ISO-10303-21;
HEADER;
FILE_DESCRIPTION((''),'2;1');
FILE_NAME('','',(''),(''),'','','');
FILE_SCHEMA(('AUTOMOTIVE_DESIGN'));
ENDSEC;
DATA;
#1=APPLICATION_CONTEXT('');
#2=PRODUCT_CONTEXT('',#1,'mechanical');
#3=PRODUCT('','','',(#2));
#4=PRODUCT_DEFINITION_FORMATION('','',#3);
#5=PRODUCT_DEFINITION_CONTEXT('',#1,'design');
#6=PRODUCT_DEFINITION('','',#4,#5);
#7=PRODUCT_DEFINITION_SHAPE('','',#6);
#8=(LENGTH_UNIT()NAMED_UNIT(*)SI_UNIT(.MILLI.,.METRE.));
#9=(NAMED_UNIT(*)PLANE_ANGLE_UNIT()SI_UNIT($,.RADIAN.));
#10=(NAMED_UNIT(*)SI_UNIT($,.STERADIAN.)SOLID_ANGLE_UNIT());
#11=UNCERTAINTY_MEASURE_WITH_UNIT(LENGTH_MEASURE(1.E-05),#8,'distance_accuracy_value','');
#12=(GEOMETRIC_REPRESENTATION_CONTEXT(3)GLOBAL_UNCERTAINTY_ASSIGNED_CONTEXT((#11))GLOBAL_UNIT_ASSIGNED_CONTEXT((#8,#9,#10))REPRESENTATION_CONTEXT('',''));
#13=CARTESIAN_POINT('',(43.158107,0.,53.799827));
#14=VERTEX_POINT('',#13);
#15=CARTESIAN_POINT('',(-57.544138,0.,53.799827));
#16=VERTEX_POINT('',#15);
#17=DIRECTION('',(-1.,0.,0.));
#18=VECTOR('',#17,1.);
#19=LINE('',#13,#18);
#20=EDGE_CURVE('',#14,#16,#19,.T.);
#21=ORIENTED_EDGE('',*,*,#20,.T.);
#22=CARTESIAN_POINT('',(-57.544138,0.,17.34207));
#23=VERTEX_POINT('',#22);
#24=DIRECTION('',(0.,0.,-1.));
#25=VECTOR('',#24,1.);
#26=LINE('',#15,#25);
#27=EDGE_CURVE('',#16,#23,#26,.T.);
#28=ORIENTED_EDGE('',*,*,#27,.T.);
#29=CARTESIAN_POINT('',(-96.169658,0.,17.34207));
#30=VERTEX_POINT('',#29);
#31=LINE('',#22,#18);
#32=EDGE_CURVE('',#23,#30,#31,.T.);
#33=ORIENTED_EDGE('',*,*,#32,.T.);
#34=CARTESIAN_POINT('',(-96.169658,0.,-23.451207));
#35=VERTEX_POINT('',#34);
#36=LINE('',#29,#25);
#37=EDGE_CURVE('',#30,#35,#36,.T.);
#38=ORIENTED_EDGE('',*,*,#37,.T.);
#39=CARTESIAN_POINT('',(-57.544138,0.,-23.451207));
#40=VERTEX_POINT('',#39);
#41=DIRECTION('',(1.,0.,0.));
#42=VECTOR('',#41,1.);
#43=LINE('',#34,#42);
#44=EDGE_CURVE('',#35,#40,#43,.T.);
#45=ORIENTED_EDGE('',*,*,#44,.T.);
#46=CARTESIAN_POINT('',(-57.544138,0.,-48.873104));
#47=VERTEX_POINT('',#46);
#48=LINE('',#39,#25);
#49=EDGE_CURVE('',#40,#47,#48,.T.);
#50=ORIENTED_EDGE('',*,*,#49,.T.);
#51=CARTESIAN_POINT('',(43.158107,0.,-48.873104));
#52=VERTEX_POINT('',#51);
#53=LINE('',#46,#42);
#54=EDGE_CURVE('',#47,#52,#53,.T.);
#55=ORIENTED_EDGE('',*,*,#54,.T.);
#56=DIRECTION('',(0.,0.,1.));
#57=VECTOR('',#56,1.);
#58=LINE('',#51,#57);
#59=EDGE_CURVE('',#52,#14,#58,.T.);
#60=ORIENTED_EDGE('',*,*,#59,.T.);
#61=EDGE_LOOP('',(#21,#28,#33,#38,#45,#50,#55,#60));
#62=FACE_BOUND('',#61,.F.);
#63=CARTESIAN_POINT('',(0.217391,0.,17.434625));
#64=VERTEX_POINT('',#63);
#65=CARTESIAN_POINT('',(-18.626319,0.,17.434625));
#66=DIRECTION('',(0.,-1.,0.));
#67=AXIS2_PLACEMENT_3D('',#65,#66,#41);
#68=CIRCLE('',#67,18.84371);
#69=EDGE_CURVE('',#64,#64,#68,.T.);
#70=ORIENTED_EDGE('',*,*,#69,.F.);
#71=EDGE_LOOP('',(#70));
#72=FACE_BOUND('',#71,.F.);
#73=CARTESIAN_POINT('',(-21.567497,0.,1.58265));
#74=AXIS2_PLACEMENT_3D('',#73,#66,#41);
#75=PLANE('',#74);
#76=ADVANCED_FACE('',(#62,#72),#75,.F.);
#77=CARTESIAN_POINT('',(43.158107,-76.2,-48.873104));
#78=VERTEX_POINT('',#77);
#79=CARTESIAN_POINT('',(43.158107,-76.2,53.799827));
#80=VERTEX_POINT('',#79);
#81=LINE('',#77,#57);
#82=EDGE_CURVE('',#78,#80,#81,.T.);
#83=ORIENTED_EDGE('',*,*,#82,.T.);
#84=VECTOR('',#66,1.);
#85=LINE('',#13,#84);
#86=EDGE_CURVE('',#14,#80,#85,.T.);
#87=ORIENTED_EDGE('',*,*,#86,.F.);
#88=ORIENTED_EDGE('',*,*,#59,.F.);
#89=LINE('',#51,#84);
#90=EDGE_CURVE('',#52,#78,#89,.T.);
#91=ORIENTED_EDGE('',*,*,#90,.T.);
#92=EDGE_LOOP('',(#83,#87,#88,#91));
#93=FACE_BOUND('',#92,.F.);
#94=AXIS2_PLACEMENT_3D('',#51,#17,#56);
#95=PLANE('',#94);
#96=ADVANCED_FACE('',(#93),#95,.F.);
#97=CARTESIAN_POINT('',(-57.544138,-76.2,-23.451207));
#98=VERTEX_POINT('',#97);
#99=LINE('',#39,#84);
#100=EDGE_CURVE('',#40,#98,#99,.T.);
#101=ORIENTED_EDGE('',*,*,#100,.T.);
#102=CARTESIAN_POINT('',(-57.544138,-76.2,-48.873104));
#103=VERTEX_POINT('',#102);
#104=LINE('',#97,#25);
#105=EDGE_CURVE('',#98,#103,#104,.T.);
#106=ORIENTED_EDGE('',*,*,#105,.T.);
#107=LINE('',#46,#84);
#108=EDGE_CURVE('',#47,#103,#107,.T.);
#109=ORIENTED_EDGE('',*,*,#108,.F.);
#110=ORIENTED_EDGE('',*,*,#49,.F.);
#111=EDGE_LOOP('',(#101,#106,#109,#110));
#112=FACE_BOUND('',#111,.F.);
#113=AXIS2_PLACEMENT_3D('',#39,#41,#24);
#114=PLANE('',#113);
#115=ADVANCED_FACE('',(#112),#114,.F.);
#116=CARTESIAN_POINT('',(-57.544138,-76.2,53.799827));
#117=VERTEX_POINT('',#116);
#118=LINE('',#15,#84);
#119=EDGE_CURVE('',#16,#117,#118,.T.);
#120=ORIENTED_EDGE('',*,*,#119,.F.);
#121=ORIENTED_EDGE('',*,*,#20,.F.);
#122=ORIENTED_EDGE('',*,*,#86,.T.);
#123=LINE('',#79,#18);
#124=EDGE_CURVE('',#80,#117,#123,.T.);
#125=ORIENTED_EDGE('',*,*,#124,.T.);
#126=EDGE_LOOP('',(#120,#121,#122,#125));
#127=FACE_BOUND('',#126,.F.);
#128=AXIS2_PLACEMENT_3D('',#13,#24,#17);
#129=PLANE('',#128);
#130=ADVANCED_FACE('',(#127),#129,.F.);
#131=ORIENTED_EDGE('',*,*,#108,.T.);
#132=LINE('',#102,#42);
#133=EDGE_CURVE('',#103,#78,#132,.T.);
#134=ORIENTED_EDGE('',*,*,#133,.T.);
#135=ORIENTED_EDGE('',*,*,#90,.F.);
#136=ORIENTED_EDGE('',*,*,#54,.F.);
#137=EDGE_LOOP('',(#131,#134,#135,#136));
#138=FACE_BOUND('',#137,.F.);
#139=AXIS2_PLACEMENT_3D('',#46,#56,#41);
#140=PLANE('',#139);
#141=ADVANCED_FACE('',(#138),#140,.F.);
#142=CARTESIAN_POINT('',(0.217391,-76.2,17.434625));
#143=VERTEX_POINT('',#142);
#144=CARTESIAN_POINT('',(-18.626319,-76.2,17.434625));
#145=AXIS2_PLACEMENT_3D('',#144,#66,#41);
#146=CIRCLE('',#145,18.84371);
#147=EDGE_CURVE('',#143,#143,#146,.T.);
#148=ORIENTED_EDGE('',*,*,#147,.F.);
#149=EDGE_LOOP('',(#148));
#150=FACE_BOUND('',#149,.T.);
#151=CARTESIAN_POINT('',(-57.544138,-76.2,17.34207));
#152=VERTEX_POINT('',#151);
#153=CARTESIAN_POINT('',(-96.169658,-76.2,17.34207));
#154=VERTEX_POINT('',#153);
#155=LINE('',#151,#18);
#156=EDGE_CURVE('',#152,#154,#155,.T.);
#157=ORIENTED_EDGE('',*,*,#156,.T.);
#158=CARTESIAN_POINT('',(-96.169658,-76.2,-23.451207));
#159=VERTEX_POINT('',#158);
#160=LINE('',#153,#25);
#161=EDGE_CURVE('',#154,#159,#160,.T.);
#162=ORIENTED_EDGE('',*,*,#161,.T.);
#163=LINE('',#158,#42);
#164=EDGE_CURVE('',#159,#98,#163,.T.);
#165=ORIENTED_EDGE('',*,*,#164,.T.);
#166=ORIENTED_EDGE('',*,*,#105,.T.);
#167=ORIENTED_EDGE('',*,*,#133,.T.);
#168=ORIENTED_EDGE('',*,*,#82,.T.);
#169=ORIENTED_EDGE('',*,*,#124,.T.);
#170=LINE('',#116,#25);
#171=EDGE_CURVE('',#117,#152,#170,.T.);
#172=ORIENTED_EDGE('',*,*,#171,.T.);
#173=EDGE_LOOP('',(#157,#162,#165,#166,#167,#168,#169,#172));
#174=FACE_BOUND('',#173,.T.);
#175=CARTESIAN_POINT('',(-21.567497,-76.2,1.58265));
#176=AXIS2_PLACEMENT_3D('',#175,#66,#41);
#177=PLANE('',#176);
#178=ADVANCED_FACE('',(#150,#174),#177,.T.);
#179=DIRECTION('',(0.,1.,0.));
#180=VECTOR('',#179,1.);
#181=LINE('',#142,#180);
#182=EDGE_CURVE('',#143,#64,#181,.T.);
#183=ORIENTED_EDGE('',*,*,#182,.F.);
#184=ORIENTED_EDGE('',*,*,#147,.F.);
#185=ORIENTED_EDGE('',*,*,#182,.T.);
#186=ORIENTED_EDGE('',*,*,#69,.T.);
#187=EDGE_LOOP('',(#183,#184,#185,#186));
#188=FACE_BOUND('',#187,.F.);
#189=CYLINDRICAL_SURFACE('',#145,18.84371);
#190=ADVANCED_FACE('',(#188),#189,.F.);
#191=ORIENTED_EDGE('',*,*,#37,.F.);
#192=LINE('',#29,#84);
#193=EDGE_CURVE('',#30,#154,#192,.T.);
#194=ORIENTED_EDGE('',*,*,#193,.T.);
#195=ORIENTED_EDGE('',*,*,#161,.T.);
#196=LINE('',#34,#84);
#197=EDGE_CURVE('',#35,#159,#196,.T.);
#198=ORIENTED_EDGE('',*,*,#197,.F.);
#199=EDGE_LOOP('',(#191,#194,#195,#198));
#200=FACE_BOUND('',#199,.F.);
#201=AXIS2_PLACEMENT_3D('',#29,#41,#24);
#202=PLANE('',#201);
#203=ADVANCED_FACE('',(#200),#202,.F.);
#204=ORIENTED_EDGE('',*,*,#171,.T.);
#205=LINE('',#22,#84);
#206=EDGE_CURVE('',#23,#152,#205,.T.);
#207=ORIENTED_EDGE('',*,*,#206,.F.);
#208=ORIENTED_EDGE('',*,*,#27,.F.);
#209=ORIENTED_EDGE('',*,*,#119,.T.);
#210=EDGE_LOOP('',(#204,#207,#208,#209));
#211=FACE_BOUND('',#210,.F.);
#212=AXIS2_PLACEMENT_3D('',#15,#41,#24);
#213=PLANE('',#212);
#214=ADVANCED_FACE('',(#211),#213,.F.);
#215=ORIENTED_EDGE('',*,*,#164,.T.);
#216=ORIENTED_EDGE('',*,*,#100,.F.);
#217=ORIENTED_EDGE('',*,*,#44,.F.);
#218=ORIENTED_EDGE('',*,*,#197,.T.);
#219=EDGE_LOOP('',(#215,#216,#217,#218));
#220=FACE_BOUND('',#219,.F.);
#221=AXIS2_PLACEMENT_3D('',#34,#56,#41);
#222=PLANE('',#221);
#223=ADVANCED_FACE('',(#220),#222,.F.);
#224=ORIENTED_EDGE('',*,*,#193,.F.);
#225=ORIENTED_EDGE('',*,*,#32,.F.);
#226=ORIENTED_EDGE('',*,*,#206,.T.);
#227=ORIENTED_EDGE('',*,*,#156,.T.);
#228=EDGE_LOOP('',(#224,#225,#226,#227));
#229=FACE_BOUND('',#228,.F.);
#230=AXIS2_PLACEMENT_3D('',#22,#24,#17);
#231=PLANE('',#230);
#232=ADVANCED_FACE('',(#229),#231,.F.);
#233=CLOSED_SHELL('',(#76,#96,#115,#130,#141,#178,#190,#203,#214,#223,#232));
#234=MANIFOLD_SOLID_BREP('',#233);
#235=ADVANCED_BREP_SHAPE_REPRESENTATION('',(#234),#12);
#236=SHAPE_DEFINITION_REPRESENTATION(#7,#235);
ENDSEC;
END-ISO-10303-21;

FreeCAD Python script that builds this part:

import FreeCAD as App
import Part
import Sketcher

V = App.Vector
Q = App.Units.Quantity


def add_polygon(sketch, points):
    """Adds a closed chain of lines whose ends are joined by coincident constraints."""
    first, n = sketch.GeometryCount, len(points)
    for a, b in zip(points, points[1:] + points[:1]):
        sketch.addGeometry(Part.LineSegment(App.Vector(*a, 0), App.Vector(*b, 0)), False)
    for i in range(n):
        sketch.addConstraint(Sketcher.Constraint("Coincident", first + i, 2, first + (i + 1) % n, 1))

doc = App.newDocument("Part")
body = doc.addObject("PartDesign::Body", "Body")

# Sketch on XZ plane
sketch1 = body.newObject("Sketcher::SketchObject", "Sketch")
sketch1.AttachmentSupport = (doc.getObject("XZ_Plane"), [""])
sketch1.MapMode = "FlatFace"
add_polygon(sketch1, [(-58, 17), (-96, 17), (-96, -23), (-58, -23), (-58, -49), (43, -49), (43, 54), (-58, 54)])  # lines 0-7
sketch1.addConstraint(Sketcher.Constraint("Horizontal", 0))
sketch1.addConstraint(Sketcher.Constraint("Vertical", 1))
sketch1.addConstraint(Sketcher.Constraint("Horizontal", 2))
sketch1.addConstraint(Sketcher.Constraint("Vertical", 3))
sketch1.addConstraint(Sketcher.Constraint("Horizontal", 4))
sketch1.addConstraint(Sketcher.Constraint("Vertical", 5))
sketch1.addConstraint(Sketcher.Constraint("Horizontal", 6))
sketch1.addConstraint(Sketcher.Constraint("Vertical", 7))
sketch1.addConstraint(Sketcher.Constraint("Vertical", 3, 2, 6, 2))
sketch1.addConstraint(Sketcher.Constraint("DistanceX", 0, 2, 0, 1, 38.62552))
sketch1.addConstraint(Sketcher.Constraint("DistanceY", 5, 1, 5, 2, 102.672931))
sketch1.addConstraint(Sketcher.Constraint("DistanceX", 4, 1, 4, 2, 100.702245))
sketch1.addConstraint(Sketcher.Constraint("DistanceY", 1, 2, 1, 1, 40.793277))
sketch1.addConstraint(Sketcher.Constraint("DistanceY", 3, 2, 3, 1, 25.421897))
sketch1.addConstraint(Sketcher.Constraint("DistanceX", 0, 2, -1, 1, 96.169658))
sketch1.addConstraint(Sketcher.Constraint("DistanceY", -1, 1, 0, 2, 17.34207))
pad1 = body.newObject("PartDesign::Pad", "Pad")
pad1.Profile = sketch1
pad1.Length = Q("3 in")

# Sketch on XZ plane
sketch2 = body.newObject("Sketcher::SketchObject", "Sketch001")
sketch2.AttachmentSupport = (doc.getObject("XZ_Plane"), [""])
sketch2.MapMode = "FlatFace"
sketch2.AttachmentOffset = App.Placement(V(0, 0, 3 * 25.4), App.Rotation())
sketch2.addGeometry(Part.Circle(V(-19, 17, 0), V(0, 0, 1), 19), False)
sketch2.addConstraint(Sketcher.Constraint("Diameter", 0, 37.68742))
sketch2.addConstraint(Sketcher.Constraint("DistanceX", 0, 3, -1, 1, 18.626319))
sketch2.addConstraint(Sketcher.Constraint("DistanceY", -1, 1, 0, 3, 17.434625))
pocket1 = body.newObject("PartDesign::Pocket", "Pocket")
pocket1.Profile = sketch2
pocket1.Length = Q("3 in")

doc.recompute()
